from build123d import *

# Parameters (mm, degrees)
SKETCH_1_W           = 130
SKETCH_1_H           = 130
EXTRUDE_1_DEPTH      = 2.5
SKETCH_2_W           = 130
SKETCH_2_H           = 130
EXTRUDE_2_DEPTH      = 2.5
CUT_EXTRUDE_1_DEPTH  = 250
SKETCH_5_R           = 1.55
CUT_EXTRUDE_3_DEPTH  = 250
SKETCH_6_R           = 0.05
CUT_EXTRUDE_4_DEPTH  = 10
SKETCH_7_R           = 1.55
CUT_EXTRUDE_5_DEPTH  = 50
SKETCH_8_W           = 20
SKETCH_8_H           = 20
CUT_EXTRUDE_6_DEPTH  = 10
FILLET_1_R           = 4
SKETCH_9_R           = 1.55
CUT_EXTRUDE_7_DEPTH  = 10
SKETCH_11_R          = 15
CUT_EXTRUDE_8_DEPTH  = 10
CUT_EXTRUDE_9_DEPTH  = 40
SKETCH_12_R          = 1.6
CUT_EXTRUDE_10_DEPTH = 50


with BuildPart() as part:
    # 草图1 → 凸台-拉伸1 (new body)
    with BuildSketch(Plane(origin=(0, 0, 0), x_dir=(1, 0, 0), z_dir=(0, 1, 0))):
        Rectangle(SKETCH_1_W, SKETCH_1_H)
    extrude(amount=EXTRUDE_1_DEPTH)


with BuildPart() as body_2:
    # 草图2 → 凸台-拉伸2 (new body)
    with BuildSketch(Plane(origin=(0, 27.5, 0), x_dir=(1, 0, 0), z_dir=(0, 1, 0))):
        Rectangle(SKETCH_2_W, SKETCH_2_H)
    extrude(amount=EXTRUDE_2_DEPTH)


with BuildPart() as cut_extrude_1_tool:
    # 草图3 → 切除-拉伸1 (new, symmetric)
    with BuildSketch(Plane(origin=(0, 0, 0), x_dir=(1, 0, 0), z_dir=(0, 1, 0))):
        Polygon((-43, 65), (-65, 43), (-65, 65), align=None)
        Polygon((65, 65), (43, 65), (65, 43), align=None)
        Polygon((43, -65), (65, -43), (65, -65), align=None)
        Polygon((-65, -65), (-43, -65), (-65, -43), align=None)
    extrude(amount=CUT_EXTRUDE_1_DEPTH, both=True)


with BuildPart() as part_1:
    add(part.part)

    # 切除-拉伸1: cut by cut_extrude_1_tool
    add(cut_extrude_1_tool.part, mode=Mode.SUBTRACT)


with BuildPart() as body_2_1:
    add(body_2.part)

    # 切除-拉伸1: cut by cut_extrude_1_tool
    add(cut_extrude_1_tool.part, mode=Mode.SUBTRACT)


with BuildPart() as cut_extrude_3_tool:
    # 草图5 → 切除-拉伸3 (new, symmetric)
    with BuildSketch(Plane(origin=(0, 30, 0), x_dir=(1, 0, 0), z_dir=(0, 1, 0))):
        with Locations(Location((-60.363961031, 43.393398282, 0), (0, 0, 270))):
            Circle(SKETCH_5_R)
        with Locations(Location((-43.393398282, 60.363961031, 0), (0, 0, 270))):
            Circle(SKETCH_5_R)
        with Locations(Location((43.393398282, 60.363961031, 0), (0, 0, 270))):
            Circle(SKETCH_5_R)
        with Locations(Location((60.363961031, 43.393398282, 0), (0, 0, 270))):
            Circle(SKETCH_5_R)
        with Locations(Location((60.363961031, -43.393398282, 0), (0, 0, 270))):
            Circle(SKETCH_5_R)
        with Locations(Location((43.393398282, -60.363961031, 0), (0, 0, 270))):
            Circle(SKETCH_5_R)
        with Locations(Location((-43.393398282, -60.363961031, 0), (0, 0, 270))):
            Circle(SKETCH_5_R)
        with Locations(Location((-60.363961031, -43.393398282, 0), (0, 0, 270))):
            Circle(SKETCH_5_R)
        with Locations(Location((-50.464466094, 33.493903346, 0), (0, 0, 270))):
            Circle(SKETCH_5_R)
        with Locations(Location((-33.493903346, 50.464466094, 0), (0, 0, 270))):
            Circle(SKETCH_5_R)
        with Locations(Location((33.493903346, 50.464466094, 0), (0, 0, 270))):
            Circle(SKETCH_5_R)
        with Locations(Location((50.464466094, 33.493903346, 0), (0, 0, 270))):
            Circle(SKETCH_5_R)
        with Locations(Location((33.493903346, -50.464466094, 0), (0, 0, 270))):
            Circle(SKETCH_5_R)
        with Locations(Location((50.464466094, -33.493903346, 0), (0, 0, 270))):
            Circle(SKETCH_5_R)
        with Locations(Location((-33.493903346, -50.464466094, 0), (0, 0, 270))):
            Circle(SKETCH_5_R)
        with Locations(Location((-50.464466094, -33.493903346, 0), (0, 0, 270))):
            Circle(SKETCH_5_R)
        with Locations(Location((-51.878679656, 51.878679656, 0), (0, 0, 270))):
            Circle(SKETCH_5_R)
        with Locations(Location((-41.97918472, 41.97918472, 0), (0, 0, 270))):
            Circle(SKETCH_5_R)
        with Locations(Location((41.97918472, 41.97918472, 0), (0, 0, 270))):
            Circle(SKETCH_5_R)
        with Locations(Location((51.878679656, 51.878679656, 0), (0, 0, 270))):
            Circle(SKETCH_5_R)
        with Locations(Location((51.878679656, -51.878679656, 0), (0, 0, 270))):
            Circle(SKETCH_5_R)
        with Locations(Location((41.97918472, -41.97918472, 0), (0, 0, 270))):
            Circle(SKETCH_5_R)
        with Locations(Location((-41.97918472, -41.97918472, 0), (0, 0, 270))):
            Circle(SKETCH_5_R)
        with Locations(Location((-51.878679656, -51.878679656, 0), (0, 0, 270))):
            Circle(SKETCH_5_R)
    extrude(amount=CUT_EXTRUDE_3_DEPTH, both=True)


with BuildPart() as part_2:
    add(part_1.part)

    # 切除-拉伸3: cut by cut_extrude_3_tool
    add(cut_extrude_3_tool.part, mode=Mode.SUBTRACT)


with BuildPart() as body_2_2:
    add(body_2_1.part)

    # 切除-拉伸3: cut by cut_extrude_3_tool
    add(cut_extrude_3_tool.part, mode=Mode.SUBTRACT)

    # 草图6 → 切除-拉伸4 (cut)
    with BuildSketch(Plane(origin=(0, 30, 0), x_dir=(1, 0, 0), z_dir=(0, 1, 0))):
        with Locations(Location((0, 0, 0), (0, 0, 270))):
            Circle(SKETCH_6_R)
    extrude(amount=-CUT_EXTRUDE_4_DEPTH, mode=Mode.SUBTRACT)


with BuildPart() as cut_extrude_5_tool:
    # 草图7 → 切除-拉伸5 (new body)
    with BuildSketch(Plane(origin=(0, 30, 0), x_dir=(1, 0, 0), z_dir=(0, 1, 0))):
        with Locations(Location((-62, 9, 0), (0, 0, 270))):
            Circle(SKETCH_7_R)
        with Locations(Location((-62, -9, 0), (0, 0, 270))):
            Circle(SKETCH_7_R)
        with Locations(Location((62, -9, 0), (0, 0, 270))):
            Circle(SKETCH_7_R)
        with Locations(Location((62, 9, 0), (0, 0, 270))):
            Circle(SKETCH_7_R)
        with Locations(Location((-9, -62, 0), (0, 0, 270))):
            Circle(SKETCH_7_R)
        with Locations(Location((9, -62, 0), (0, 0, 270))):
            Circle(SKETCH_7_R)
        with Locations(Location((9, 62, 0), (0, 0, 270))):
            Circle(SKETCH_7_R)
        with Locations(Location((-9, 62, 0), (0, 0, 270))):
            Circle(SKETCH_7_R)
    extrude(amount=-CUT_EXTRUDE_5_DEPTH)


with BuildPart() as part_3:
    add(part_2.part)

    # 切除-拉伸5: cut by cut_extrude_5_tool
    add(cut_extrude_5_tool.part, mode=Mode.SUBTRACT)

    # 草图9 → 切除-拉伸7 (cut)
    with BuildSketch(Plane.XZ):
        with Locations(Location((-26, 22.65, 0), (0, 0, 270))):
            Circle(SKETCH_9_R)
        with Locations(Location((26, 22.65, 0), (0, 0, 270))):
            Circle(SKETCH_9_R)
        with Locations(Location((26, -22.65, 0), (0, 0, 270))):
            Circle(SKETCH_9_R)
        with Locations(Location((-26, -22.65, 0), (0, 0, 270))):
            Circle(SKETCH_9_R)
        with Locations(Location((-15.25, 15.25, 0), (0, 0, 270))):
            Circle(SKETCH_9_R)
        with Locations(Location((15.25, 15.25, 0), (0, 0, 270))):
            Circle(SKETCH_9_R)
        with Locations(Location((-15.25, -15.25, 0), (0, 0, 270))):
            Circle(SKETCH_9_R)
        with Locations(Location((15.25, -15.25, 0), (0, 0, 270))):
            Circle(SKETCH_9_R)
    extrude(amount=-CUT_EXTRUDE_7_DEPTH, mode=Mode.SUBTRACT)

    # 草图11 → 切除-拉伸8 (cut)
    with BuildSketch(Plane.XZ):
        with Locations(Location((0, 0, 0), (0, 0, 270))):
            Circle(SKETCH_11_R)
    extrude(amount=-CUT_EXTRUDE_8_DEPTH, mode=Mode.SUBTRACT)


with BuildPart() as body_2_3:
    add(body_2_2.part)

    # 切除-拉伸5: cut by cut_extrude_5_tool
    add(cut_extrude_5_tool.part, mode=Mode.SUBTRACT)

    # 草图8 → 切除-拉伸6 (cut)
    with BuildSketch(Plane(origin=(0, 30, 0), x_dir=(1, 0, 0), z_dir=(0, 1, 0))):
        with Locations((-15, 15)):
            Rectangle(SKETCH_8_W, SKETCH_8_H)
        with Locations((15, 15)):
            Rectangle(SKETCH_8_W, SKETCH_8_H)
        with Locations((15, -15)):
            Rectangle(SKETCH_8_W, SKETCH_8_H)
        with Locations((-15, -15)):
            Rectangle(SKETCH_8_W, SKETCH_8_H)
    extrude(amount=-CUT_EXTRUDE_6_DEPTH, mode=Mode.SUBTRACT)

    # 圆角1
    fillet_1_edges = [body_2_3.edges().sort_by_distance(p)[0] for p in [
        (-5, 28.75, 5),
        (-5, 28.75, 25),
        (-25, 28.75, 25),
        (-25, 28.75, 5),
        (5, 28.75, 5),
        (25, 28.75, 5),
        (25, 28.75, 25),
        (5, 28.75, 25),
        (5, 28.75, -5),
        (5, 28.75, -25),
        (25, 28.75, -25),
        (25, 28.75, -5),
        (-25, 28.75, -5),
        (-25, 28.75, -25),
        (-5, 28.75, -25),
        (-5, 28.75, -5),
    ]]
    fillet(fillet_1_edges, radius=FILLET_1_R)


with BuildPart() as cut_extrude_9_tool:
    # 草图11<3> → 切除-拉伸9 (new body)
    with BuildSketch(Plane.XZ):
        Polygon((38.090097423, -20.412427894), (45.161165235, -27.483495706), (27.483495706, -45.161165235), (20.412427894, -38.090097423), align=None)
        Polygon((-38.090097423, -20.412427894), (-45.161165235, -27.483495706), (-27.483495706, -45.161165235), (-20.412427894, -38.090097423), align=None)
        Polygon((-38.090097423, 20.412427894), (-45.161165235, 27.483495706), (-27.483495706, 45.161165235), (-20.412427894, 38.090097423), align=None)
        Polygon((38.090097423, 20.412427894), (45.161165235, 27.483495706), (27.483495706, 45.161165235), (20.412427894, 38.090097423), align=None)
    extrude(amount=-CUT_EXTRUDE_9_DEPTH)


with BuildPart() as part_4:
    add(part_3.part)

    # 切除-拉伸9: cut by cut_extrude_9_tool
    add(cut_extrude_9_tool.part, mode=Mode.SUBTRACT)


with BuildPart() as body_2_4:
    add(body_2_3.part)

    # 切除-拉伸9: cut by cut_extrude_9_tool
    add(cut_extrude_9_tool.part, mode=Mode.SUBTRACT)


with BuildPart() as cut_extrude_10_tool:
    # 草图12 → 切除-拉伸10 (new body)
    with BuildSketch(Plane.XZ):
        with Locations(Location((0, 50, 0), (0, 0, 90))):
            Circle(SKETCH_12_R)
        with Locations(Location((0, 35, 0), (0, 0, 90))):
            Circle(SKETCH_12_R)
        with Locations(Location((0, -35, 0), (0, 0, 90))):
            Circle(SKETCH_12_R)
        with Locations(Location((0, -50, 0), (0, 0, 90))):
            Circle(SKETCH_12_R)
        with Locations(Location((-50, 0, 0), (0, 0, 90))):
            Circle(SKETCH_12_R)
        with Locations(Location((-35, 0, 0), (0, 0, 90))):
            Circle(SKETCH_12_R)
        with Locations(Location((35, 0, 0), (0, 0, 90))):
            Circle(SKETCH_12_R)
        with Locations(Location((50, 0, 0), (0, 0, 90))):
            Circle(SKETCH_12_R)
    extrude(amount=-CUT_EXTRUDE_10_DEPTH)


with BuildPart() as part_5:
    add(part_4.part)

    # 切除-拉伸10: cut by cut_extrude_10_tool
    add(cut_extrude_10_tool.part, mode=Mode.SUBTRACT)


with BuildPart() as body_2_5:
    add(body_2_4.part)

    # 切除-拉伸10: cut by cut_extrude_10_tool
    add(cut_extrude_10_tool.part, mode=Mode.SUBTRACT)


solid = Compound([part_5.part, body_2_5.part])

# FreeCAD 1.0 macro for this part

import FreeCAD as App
import Part
import Sketcher
from FreeCAD import Vector
Q = App.Units.Quantity


def edges_at(feature, points):
    """Names of the edges that pass closest to the given points."""
    edges = feature.Shape.Edges
    near = lambda p: min(range(len(edges)), key=lambda i: edges[i].distToShape(Part.Vertex(*p))[0])
    return sorted({f"Edge{near(p) + 1}" for p in points})


def add_polygon(sketch, points):
    """Adds a closed chain of lines whose ends are joined by coincident constraints."""
    first, n = sketch.GeometryCount, len(points)
    for a, b in zip(points, points[1:] + points[:1]):
        sketch.addGeometry(Part.LineSegment(App.Vector(*a, 0), App.Vector(*b, 0)), False)
    for i in range(n):
        sketch.addConstraint(Sketcher.Constraint("Coincident", first + i, 2, first + (i + 1) % n, 1))

doc = App.newDocument("Part")
params = doc.addObject("Spreadsheet::Sheet", "Params")
for row, (alias, value) in enumerate([
    ("sketch1_width", "130 mm"),
    ("pad1_length", "2.5 mm"),
    ("sketch2_width", "130 mm"),
    ("pad2_length", "2.5 mm"),
    ("sketch3_width", "22 mm"),
    ("pad3_length", "500 mm"),
    ("sketch4_diameter", "3.1 mm"),
    ("pad4_length", "500 mm"),
    ("sketch5_diameter", "0.1 mm"),
    ("pocket1_length", "10 mm"),
    ("sketch6_diameter", "3.1 mm"),
    ("pad5_length", "50 mm"),
    ("sketch7_diameter", "3.1 mm"),
    ("pocket2_length", "10 mm"),
    ("sketch8_diameter", "30 mm"),
    ("pocket3_length", "10 mm"),
    ("sketch9_width", "20 mm"),
    ("pocket4_length", "10 mm"),
    ("fillet_radius", "4 mm"),
    ("sketch10_length", "10 mm"),
    ("sketch10_length2", "25 mm"),
    ("pad6_length", "40 mm"),
    ("sketch11_diameter", "3.2 mm"),
    ("pad7_length", "50 mm"),
], start=1):
    params.set(f"A{row}", alias)
    params.set(f"B{row}", "=" + value)
    params.setAlias(f"B{row}", alias)

body = doc.addObject("PartDesign::Body", "Body")

sketch1 = body.newObject("Sketcher::SketchObject", "Sketch")
sketch1.AttachmentSupport = (doc.getObject("XZ_Plane"), [""])
sketch1.MapMode = "FlatFace"
add_polygon(sketch1, [(-65, -65), (-65, 65), (65, 65), (65, -65)])
sketch1.addConstraint([
    Sketcher.Constraint("Vertical", 0),
    Sketcher.Constraint("Horizontal", 1),
    Sketcher.Constraint("Vertical", 2),
    Sketcher.Constraint("Horizontal", 3),
    Sketcher.Constraint("Symmetric", 0, 2, 2, 2, -1, 1),
    Sketcher.Constraint("Equal", 3, 0),
    Sketcher.Constraint("DistanceX", 1, 1, 1, 2, Q("130 mm")),
])
sketch1.setExpression("Constraints[10]", "Params.sketch1_width")
pad1 = body.newObject("PartDesign::Pad", "Pad")
pad1.Profile = sketch1
pad1.setExpression("Length", "Params.pad1_length")
pad1.Reversed = True
body2 = doc.addObject("PartDesign::Body", "Body001")

sketch2 = body2.newObject("Sketcher::SketchObject", "Sketch001")
sketch2.AttachmentSupport = (doc.getObject("XZ_Plane001"), [""])
sketch2.MapMode = "FlatFace"
sketch2.AttachmentOffset = App.Placement(Vector(0, 0, -27.5), App.Rotation())
add_polygon(sketch2, [(-65, -65), (-65, 65), (65, 65), (65, -65)])
sketch2.addConstraint([
    Sketcher.Constraint("Vertical", 0),
    Sketcher.Constraint("Horizontal", 1),
    Sketcher.Constraint("Vertical", 2),
    Sketcher.Constraint("Horizontal", 3),
    Sketcher.Constraint("Symmetric", 0, 2, 2, 2, -1, 1),
    Sketcher.Constraint("Equal", 3, 0),
    Sketcher.Constraint("DistanceX", 1, 1, 1, 2, Q("130 mm")),
])
sketch2.setExpression("Constraints[10]", "Params.sketch2_width")
pad2 = body2.newObject("PartDesign::Pad", "Pad001")
pad2.Profile = sketch2
pad2.setExpression("Length", "Params.pad2_length")
pad2.Reversed = True
body3 = doc.addObject("PartDesign::Body", "Body002")
body3.AllowCompound = True

sketch3 = body3.newObject("Sketcher::SketchObject", "Sketch002")
sketch3.AttachmentSupport = (doc.getObject("XZ_Plane002"), [""])
sketch3.MapMode = "FlatFace"
add_polygon(sketch3, [(-65, -43), (-43, -65), (-65, -65)])
add_polygon(sketch3, [(65, -65), (43, -65), (65, -43)])
add_polygon(sketch3, [(65, 43), (43, 65), (65, 65)])
add_polygon(sketch3, [(-65, 65), (-43, 65), (-65, 43)])
sketch3.addConstraint([
    Sketcher.Constraint("Horizontal", 1),
    Sketcher.Constraint("Vertical", 2),
    Sketcher.Constraint("Horizontal", 3),
    Sketcher.Constraint("Vertical", 5),
    Sketcher.Constraint("Horizontal", 7),
    Sketcher.Constraint("Vertical", 8),
    Sketcher.Constraint("Horizontal", 9),
    Sketcher.Constraint("Vertical", 11),
    Sketcher.Constraint("Symmetric", 0, 2, 6, 2, -1, 1),
    Sketcher.Constraint("Symmetric", 2, 2, 8, 2, -1, 1),
    Sketcher.Constraint("Symmetric", 3, 2, 9, 2, -1, 1),
    Sketcher.Constraint("Symmetric", 4, 2, 10, 2, -1, 1),
    Sketcher.Constraint("Symmetric", 0, 2, 3, 2, -2),
    Sketcher.Constraint("Symmetric", 2, 2, 4, 2, -2),
    Sketcher.Constraint("Perpendicular", 0, 4),
    Sketcher.Constraint("DistanceX", 1, 2, 1, 1, Q("22 mm")),
    Sketcher.Constraint("DistanceX", 0, 2, -1, 1, Q("43 mm")),
    Sketcher.Constraint("DistanceY", 0, 2, -1, 1, Q("65 mm")),
])
sketch3.setExpression("Constraints[27]", "Params.sketch3_width")
pad3 = body3.newObject("PartDesign::Pad", "Pad002")
pad3.Profile = sketch3
pad3.setExpression("Length", "Params.pad3_length")
pad3.Midplane = True
doc.recompute()

body4 = doc.addObject("PartDesign::Body", "Body003")
body4.BaseFeature = body3
boolean = body.newObject("PartDesign::Boolean", "Boolean")
boolean.Type = "Cut"
boolean.addObjects([body4])
doc.recompute()

boolean2 = body2.newObject("PartDesign::Boolean", "Boolean001")
boolean2.Type = "Cut"
boolean2.addObjects([body3])
body5 = doc.addObject("PartDesign::Body", "Body004")
body5.AllowCompound = True

sketch4 = body5.newObject("Sketcher::SketchObject", "Sketch003")
sketch4.AttachmentSupport = (doc.getObject("XZ_Plane004"), [""])
sketch4.MapMode = "FlatFace"
sketch4.AttachmentOffset = App.Placement(Vector(0, 0, -30), App.Rotation())
sketch4.addGeometry([
    Part.Circle(Vector(-60.363961, -43.393398, 0), Vector(0, 0, 1), 1.55),
    Part.Circle(Vector(-43.393398, -60.363961, 0), Vector(0, 0, 1), 1.55),
    Part.Circle(Vector(43.393398, -60.363961, 0), Vector(0, 0, 1), 1.55),
    Part.Circle(Vector(60.363961, -43.393398, 0), Vector(0, 0, 1), 1.55),
    Part.Circle(Vector(60.363961, 43.393398, 0), Vector(0, 0, 1), 1.55),
    Part.Circle(Vector(43.393398, 60.363961, 0), Vector(0, 0, 1), 1.55),
    Part.Circle(Vector(-43.393398, 60.363961, 0), Vector(0, 0, 1), 1.55),
    Part.Circle(Vector(-60.363961, 43.393398, 0), Vector(0, 0, 1), 1.55),
    Part.Circle(Vector(-50.464466, -33.493903, 0), Vector(0, 0, 1), 1.55),
    Part.Circle(Vector(-33.493903, -50.464466, 0), Vector(0, 0, 1), 1.55),
    Part.Circle(Vector(33.493903, -50.464466, 0), Vector(0, 0, 1), 1.55),
    Part.Circle(Vector(50.464466, -33.493903, 0), Vector(0, 0, 1), 1.55),
    Part.Circle(Vector(33.493903, 50.464466, 0), Vector(0, 0, 1), 1.55),
    Part.Circle(Vector(50.464466, 33.493903, 0), Vector(0, 0, 1), 1.55),
    Part.Circle(Vector(-33.493903, 50.464466, 0), Vector(0, 0, 1), 1.55),
    Part.Circle(Vector(-50.464466, 33.493903, 0), Vector(0, 0, 1), 1.55),
    Part.Circle(Vector(-51.87868, -51.87868, 0), Vector(0, 0, 1), 1.55),
    Part.Circle(Vector(-41.979185, -41.979185, 0), Vector(0, 0, 1), 1.55),
    Part.Circle(Vector(41.979185, -41.979185, 0), Vector(0, 0, 1), 1.55),
    Part.Circle(Vector(51.87868, -51.87868, 0), Vector(0, 0, 1), 1.55),
    Part.Circle(Vector(51.87868, 51.87868, 0), Vector(0, 0, 1), 1.55),
    Part.Circle(Vector(41.979185, 41.979185, 0), Vector(0, 0, 1), 1.55),
    Part.Circle(Vector(-41.979185, 41.979185, 0), Vector(0, 0, 1), 1.55),
    Part.Circle(Vector(-51.87868, 51.87868, 0), Vector(0, 0, 1), 1.55),
], False)
sketch4.addConstraint([
    Sketcher.Constraint("Equal", 0, 1),
    Sketcher.Constraint("Equal", 1, 2),
    Sketcher.Constraint("Equal", 2, 3),
    Sketcher.Constraint("Equal", 3, 4),
    Sketcher.Constraint("Equal", 4, 5),
    Sketcher.Constraint("Equal", 5, 6),
    Sketcher.Constraint("Equal", 6, 7),
    Sketcher.Constraint("Equal", 7, 8),
    Sketcher.Constraint("Equal", 8, 9),
    Sketcher.Constraint("Equal", 9, 10),
    Sketcher.Constraint("Equal", 10, 11),
    Sketcher.Constraint("Equal", 11, 12),
    Sketcher.Constraint("Equal", 12, 13),
    Sketcher.Constraint("Equal", 13, 14),
    Sketcher.Constraint("Equal", 14, 15),
    Sketcher.Constraint("Equal", 15, 16),
    Sketcher.Constraint("Equal", 16, 17),
    Sketcher.Constraint("Equal", 17, 18),
    Sketcher.Constraint("Equal", 18, 19),
    Sketcher.Constraint("Equal", 19, 20),
    Sketcher.Constraint("Equal", 20, 21),
    Sketcher.Constraint("Equal", 21, 22),
    Sketcher.Constraint("Equal", 22, 23),
    Sketcher.Constraint("Symmetric", 0, 3, 4, 3, -1, 1),
    Sketcher.Constraint("Symmetric", 1, 3, 5, 3, -1, 1),
    Sketcher.Constraint("Symmetric", 2, 3, 6, 3, -1, 1),
    Sketcher.Constraint("Symmetric", 3, 3, 7, 3, -1, 1),
    Sketcher.Constraint("Symmetric", 9, 3, 12, 3, -1, 1),
    Sketcher.Constraint("Symmetric", 8, 3, 13, 3, -1, 1),
    Sketcher.Constraint("Symmetric", 10, 3, 14, 3, -1, 1),
    Sketcher.Constraint("Symmetric", 11, 3, 15, 3, -1, 1),
    Sketcher.Constraint("Symmetric", 16, 3, 20, 3, -1, 1),
    Sketcher.Constraint("Symmetric", 17, 3, 21, 3, -1, 1),
    Sketcher.Constraint("Symmetric", 18, 3, 22, 3, -1, 1),
    Sketcher.Constraint("Symmetric", 19, 3, 23, 3, -1, 1),
    Sketcher.Constraint("Symmetric", 1, 3, 2, 3, -2),
    Sketcher.Constraint("Symmetric", 0, 3, 3, 3, -2),
    Sketcher.Constraint("Symmetric", 9, 3, 10, 3, -2),
    Sketcher.Constraint("Symmetric", 8, 3, 11, 3, -2),
    Sketcher.Constraint("Symmetric", 17, 3, 18, 3, -2),
    Sketcher.Constraint("Symmetric", 16, 3, 19, 3, -2),
    Sketcher.Constraint("Diameter", 0, Q("3.1 mm")),
    Sketcher.Constraint("DistanceY", 0, 3, -1, 1, Q("43.393398 mm")),
    Sketcher.Constraint("DistanceX", 1, 3, -1, 1, Q("43.393398 mm")),
    Sketcher.Constraint("DistanceY", 8, 3, 7, 3, Q("76.887302 mm")),
    Sketcher.Constraint("DistanceX", 9, 3, 2, 3, Q("76.887302 mm")),
    Sketcher.Constraint("DistanceX", 0, 3, -1, 1, Q("60.363961 mm")),
    Sketcher.Constraint("DistanceY", 1, 3, -1, 1, Q("60.363961 mm")),
    Sketcher.Constraint("DistanceX", 16, 3, -1, 1, Q("51.87868 mm")),
    Sketcher.Constraint("DistanceY", 16, 3, -1, 1, Q("51.87868 mm")),
    Sketcher.Constraint("DistanceX", 8, 3, 10, 3, Q("83.958369 mm")),
    Sketcher.Constraint("DistanceY", 11, 3, 12, 3, Q("83.958369 mm")),
    Sketcher.Constraint("DistanceX", 8, 3, 17, 3, Q("8.485281 mm")),
    Sketcher.Constraint("DistanceY", 17, 3, 8, 3, Q("8.485281 mm")),
])
sketch4.setExpression("Constraints[41]", "Params.sketch4_diameter")
pad4 = body5.newObject("PartDesign::Pad", "Pad003")
pad4.Profile = sketch4
pad4.setExpression("Length", "Params.pad4_length")
pad4.Midplane = True
doc.recompute()

body6 = doc.addObject("PartDesign::Body", "Body005")
body6.BaseFeature = body5
boolean3 = body.newObject("PartDesign::Boolean", "Boolean002")
boolean3.Type = "Cut"
boolean3.addObjects([body6])
doc.recompute()

boolean4 = body2.newObject("PartDesign::Boolean", "Boolean003")
boolean4.Type = "Cut"
boolean4.addObjects([body5])

sketch5 = body2.newObject("Sketcher::SketchObject", "Sketch004")
sketch5.AttachmentSupport = (doc.getObject("XZ_Plane001"), [""])
sketch5.MapMode = "FlatFace"
sketch5.AttachmentOffset = App.Placement(Vector(0, 0, -30), App.Rotation())
sketch5.addGeometry(Part.Circle(Vector(0, 0, 0), Vector(0, 0, 1), 0.05), False)
sketch5.addConstraint([
    Sketcher.Constraint("Coincident", 0, 3, -1, 1),
    Sketcher.Constraint("Diameter", 0, Q("0.1 mm")),
])
sketch5.setExpression("Constraints[1]", "Params.sketch5_diameter")
pocket1 = body2.newObject("PartDesign::Pocket", "Pocket")
pocket1.Profile = sketch5
pocket1.setExpression("Length", "Params.pocket1_length")
pocket1.Reversed = True
body7 = doc.addObject("PartDesign::Body", "Body006")
body7.AllowCompound = True

sketch6 = body7.newObject("Sketcher::SketchObject", "Sketch005")
sketch6.AttachmentSupport = (doc.getObject("XZ_Plane006"), [""])
sketch6.MapMode = "FlatFace"
sketch6.AttachmentOffset = App.Placement(Vector(0, 0, -30), App.Rotation())
sketch6.addGeometry([
    Part.Circle(Vector(-62, -9, 0), Vector(0, 0, 1), 1.55),
    Part.Circle(Vector(-62, 9, 0), Vector(0, 0, 1), 1.55),
    Part.Circle(Vector(62, 9, 0), Vector(0, 0, 1), 1.55),
    Part.Circle(Vector(62, -9, 0), Vector(0, 0, 1), 1.55),
    Part.Circle(Vector(-9, 62, 0), Vector(0, 0, 1), 1.55),
    Part.Circle(Vector(9, 62, 0), Vector(0, 0, 1), 1.55),
    Part.Circle(Vector(9, -62, 0), Vector(0, 0, 1), 1.55),
    Part.Circle(Vector(-9, -62, 0), Vector(0, 0, 1), 1.55),
], False)
sketch6.addConstraint([
    Sketcher.Constraint("Equal", 0, 1),
    Sketcher.Constraint("Equal", 1, 2),
    Sketcher.Constraint("Equal", 2, 3),
    Sketcher.Constraint("Equal", 3, 4),
    Sketcher.Constraint("Equal", 4, 5),
    Sketcher.Constraint("Equal", 5, 6),
    Sketcher.Constraint("Equal", 6, 7),
    Sketcher.Constraint("Symmetric", 0, 3, 2, 3, -1, 1),
    Sketcher.Constraint("Symmetric", 1, 3, 3, 3, -1, 1),
    Sketcher.Constraint("Symmetric", 4, 3, 6, 3, -1, 1),
    Sketcher.Constraint("Symmetric", 5, 3, 7, 3, -1, 1),
    Sketcher.Constraint("Symmetric", 1, 3, 2, 3, -2),
    Sketcher.Constraint("Symmetric", 4, 3, 5, 3, -2),
    Sketcher.Constraint("Diameter", 0, Q("3.1 mm")),
    Sketcher.Constraint("DistanceX", 0, 3, -1, 1, Q("62 mm")),
    Sketcher.Constraint("DistanceY", 0, 3, -1, 1, Q("9 mm")),
    Sketcher.Constraint("DistanceX", 4, 3, -1, 1, Q("9 mm")),
    Sketcher.Constraint("DistanceY", -1, 1, 4, 3, Q("62 mm")),
])
sketch6.setExpression("Constraints[13]", "Params.sketch6_diameter")
pad5 = body7.newObject("PartDesign::Pad", "Pad004")
pad5.Profile = sketch6
pad5.setExpression("Length", "Params.pad5_length")
doc.recompute()

body8 = doc.addObject("PartDesign::Body", "Body007")
body8.BaseFeature = body7
boolean5 = body.newObject("PartDesign::Boolean", "Boolean004")
boolean5.Type = "Cut"
boolean5.addObjects([body8])
doc.recompute()

sketch7 = body.newObject("Sketcher::SketchObject", "Sketch006")
sketch7.AttachmentSupport = (doc.getObject("XZ_Plane"), [""])
sketch7.MapMode = "FlatFace"
sketch7.addGeometry([
    Part.Circle(Vector(-26, 22.65, 0), Vector(0, 0, 1), 1.55),
    Part.Circle(Vector(26, 22.65, 0), Vector(0, 0, 1), 1.55),
    Part.Circle(Vector(26, -22.65, 0), Vector(0, 0, 1), 1.55),
    Part.Circle(Vector(-26, -22.65, 0), Vector(0, 0, 1), 1.55),
    Part.Circle(Vector(-15.25, 15.25, 0), Vector(0, 0, 1), 1.55),
    Part.Circle(Vector(15.25, 15.25, 0), Vector(0, 0, 1), 1.55),
    Part.Circle(Vector(-15.25, -15.25, 0), Vector(0, 0, 1), 1.55),
    Part.Circle(Vector(15.25, -15.25, 0), Vector(0, 0, 1), 1.55),
], False)
sketch7.addConstraint([
    Sketcher.Constraint("Equal", 0, 1),
    Sketcher.Constraint("Equal", 1, 2),
    Sketcher.Constraint("Equal", 2, 3),
    Sketcher.Constraint("Equal", 3, 4),
    Sketcher.Constraint("Equal", 4, 5),
    Sketcher.Constraint("Equal", 5, 6),
    Sketcher.Constraint("Equal", 6, 7),
    Sketcher.Constraint("Symmetric", 0, 3, 2, 3, -1, 1),
    Sketcher.Constraint("Symmetric", 1, 3, 3, 3, -1, 1),
    Sketcher.Constraint("Symmetric", 5, 3, 6, 3, -1, 1),
    Sketcher.Constraint("Symmetric", 4, 3, 7, 3, -1, 1),
    Sketcher.Constraint("Symmetric", 0, 3, 1, 3, -2),
    Sketcher.Constraint("Symmetric", 4, 3, 5, 3, -2),
    Sketcher.Constraint("Diameter", 0, Q("3.1 mm")),
    Sketcher.Constraint("DistanceX", 0, 3, -1, 1, Q("26 mm")),
    Sketcher.Constraint("DistanceY", 2, 3, 1, 3, Q("45.3 mm")),
    Sketcher.Constraint("DistanceY", 4, 3, 0, 3, Q("7.4 mm")),
    Sketcher.Constraint("DistanceX", 4, 3, 5, 3, Q("30.5 mm")),
])
sketch7.setExpression("Constraints[13]", "Params.sketch7_diameter")
pocket2 = body.newObject("PartDesign::Pocket", "Pocket001")
pocket2.Profile = sketch7
pocket2.setExpression("Length", "Params.pocket2_length")

sketch8 = body.newObject("Sketcher::SketchObject", "Sketch007")
sketch8.AttachmentSupport = (doc.getObject("XZ_Plane"), [""])
sketch8.MapMode = "FlatFace"
sketch8.addGeometry(Part.Circle(Vector(0, 0, 0), Vector(0, 0, 1), 15), False)
sketch8.addConstraint([
    Sketcher.Constraint("Coincident", 0, 3, -1, 1),
    Sketcher.Constraint("Diameter", 0, Q("30 mm")),
])
sketch8.setExpression("Constraints[1]", "Params.sketch8_diameter")
pocket3 = body.newObject("PartDesign::Pocket", "Pocket002")
pocket3.Profile = sketch8
pocket3.setExpression("Length", "Params.pocket3_length")
doc.recompute()

boolean6 = body2.newObject("PartDesign::Boolean", "Boolean005")
boolean6.Type = "Cut"
boolean6.addObjects([body7])

sketch9 = body2.newObject("Sketcher::SketchObject", "Sketch008")
sketch9.AttachmentSupport = (doc.getObject("XZ_Plane001"), [""])
sketch9.MapMode = "FlatFace"
sketch9.AttachmentOffset = App.Placement(Vector(0, 0, -30), App.Rotation())
add_polygon(sketch9, [(-25, -25), (-25, -5), (-5, -5), (-5, -25)])
add_polygon(sketch9, [(5, -25), (5, -5), (25, -5), (25, -25)])
add_polygon(sketch9, [(5, 5), (5, 25), (25, 25), (25, 5)])
add_polygon(sketch9, [(-25, 5), (-25, 25), (-5, 25), (-5, 5)])
sketch9.addConstraint([
    Sketcher.Constraint("Vertical", 0),
    Sketcher.Constraint("Horizontal", 1),
    Sketcher.Constraint("Vertical", 2),
    Sketcher.Constraint("Horizontal", 3),
    Sketcher.Constraint("Vertical", 4),
    Sketcher.Constraint("Horizontal", 5),
    Sketcher.Constraint("Vertical", 6),
    Sketcher.Constraint("Horizontal", 7),
    Sketcher.Constraint("Vertical", 8),
    Sketcher.Constraint("Horizontal", 9),
    Sketcher.Constraint("Vertical", 10),
    Sketcher.Constraint("Horizontal", 11),
    Sketcher.Constraint("Vertical", 12),
    Sketcher.Constraint("Horizontal", 13),
    Sketcher.Constraint("Vertical", 14),
    Sketcher.Constraint("Horizontal", 15),
    Sketcher.Constraint("Symmetric", 2, 2, 8, 2, -1, 1),
    Sketcher.Constraint("Symmetric", 0, 2, 10, 2, -1, 1),
    Sketcher.Constraint("Symmetric", 6, 2, 12, 2, -1, 1),
    Sketcher.Constraint("Symmetric", 4, 2, 14, 2, -1, 1),
    Sketcher.Constraint("Symmetric", 1, 2, 4, 2, -2),
    Sketcher.Constraint("Symmetric", 3, 2, 6, 2, -2),
    Sketcher.Constraint("Equal", 15, 0),
    Sketcher.Constraint("DistanceX", 1, 1, 1, 2, Q("20 mm")),
    Sketcher.Constraint("DistanceX", 0, 2, -1, 1, Q("25 mm")),
    Sketcher.Constraint("DistanceY", 0, 2, -1, 1, Q("5 mm")),
])
sketch9.setExpression("Constraints[39]", "Params.sketch9_width")
pocket4 = body2.newObject("PartDesign::Pocket", "Pocket003")
pocket4.Profile = sketch9
pocket4.setExpression("Length", "Params.pocket4_length")
pocket4.Reversed = True
doc.recompute()

fillet = body2.newObject("PartDesign::Fillet", "Fillet")
fillet.Base = (pocket4, edges_at(pocket4, [
    (-5, 28.75, 5),
    (-5, 28.75, 25),
    (-25, 28.75, 25),
    (-25, 28.75, 5),
    (5, 28.75, 5),
    (25, 28.75, 5),
    (25, 28.75, 25),
    (5, 28.75, 25),
    (5, 28.75, -5),
    (5, 28.75, -25),
    (25, 28.75, -25),
    (25, 28.75, -5),
    (-25, 28.75, -5),
    (-25, 28.75, -25),
    (-5, 28.75, -25),
    (-5, 28.75, -5),
]))
fillet.setExpression("Radius", "Params.fillet_radius")
body9 = doc.addObject("PartDesign::Body", "Body008")
body9.AllowCompound = True

sketch10 = body9.newObject("Sketcher::SketchObject", "Sketch009")
sketch10.AttachmentSupport = (doc.getObject("XZ_Plane008"), [""])
sketch10.MapMode = "FlatFace"
add_polygon(sketch10, [(45.161165, -27.483496), (38.090097, -20.412428), (20.412428, -38.090097), (27.483496, -45.161165)])
add_polygon(sketch10, [(-38.090097, -20.412428), (-45.161165, -27.483496), (-27.483496, -45.161165), (-20.412428, -38.090097)])
add_polygon(sketch10, [(-45.161165, 27.483496), (-38.090097, 20.412428), (-20.412428, 38.090097), (-27.483496, 45.161165)])
add_polygon(sketch10, [(38.090097, 20.412428), (45.161165, 27.483496), (27.483496, 45.161165), (20.412428, 38.090097)])
sketch10.addConstraint([
    Sketcher.Constraint("Symmetric", 0, 2, 8, 2, -1, 1),
    Sketcher.Constraint("Symmetric", 1, 2, 9, 2, -1, 1),
    Sketcher.Constraint("Symmetric", 2, 2, 10, 2, -1, 1),
    Sketcher.Constraint("Symmetric", 3, 2, 11, 2, -1, 1),
    Sketcher.Constraint("Symmetric", 4, 2, 12, 2, -1, 1),
    Sketcher.Constraint("Symmetric", 5, 2, 13, 2, -1, 1),
    Sketcher.Constraint("Symmetric", 6, 2, 14, 2, -1, 1),
    Sketcher.Constraint("Symmetric", 7, 2, 15, 2, -1, 1),
    Sketcher.Constraint("Symmetric", 3, 2, 4, 2, -2),
    Sketcher.Constraint("Symmetric", 2, 2, 5, 2, -2),
    Sketcher.Constraint("Symmetric", 1, 2, 6, 2, -2),
    Sketcher.Constraint("Symmetric", 0, 2, 7, 2, -2),
    Sketcher.Constraint("Perpendicular", 0, 1),
    Sketcher.Constraint("Perpendicular", 1, 2),
    Sketcher.Constraint("Perpendicular", 2, 3),
    Sketcher.Constraint("Parallel", 3, 4),
    Sketcher.Constraint("Distance", 0, Q("10 mm")),
    Sketcher.Constraint("Distance", 1, Q("25 mm")),
    Sketcher.Constraint("DistanceX", 4, 2, 2, 2, Q("72.644661 mm")),
    Sketcher.Constraint("DistanceY", 4, 2, 10, 2, Q("72.644661 mm")),
])
sketch10.setExpression("Constraints[32]", "Params.sketch10_length")
sketch10.setExpression("Constraints[33]", "Params.sketch10_length2")
pad6 = body9.newObject("PartDesign::Pad", "Pad005")
pad6.Profile = sketch10
pad6.setExpression("Length", "Params.pad6_length")
pad6.Reversed = True
doc.recompute()

body10 = doc.addObject("PartDesign::Body", "Body009")
body10.BaseFeature = body9
boolean7 = body.newObject("PartDesign::Boolean", "Boolean006")
boolean7.Type = "Cut"
boolean7.addObjects([body10])
doc.recompute()

boolean8 = body2.newObject("PartDesign::Boolean", "Boolean007")
boolean8.Type = "Cut"
boolean8.addObjects([body9])
body11 = doc.addObject("PartDesign::Body", "Body010")
body11.AllowCompound = True

sketch11 = body11.newObject("Sketcher::SketchObject", "Sketch010")
sketch11.AttachmentSupport = (doc.getObject("XZ_Plane010"), [""])
sketch11.MapMode = "FlatFace"
sketch11.addGeometry([
    Part.Circle(Vector(0, 50, 0), Vector(0, 0, 1), 1.6),
    Part.Circle(Vector(0, 35, 0), Vector(0, 0, 1), 1.6),
    Part.Circle(Vector(0, -35, 0), Vector(0, 0, 1), 1.6),
    Part.Circle(Vector(0, -50, 0), Vector(0, 0, 1), 1.6),
    Part.Circle(Vector(-50, 0, 0), Vector(0, 0, 1), 1.6),
    Part.Circle(Vector(-35, 0, 0), Vector(0, 0, 1), 1.6),
    Part.Circle(Vector(35, 0, 0), Vector(0, 0, 1), 1.6),
    Part.Circle(Vector(50, 0, 0), Vector(0, 0, 1), 1.6),
], False)
sketch11.addConstraint([
    Sketcher.Constraint("Equal", 0, 1),
    Sketcher.Constraint("Equal", 1, 2),
    Sketcher.Constraint("Equal", 2, 3),
    Sketcher.Constraint("Equal", 3, 4),
    Sketcher.Constraint("Equal", 4, 5),
    Sketcher.Constraint("Equal", 5, 6),
    Sketcher.Constraint("Equal", 6, 7),
    Sketcher.Constraint("Symmetric", 1, 3, 2, 3, -1, 1),
    Sketcher.Constraint("Symmetric", 0, 3, 3, 3, -1, 1),
    Sketcher.Constraint("Symmetric", 5, 3, 6, 3, -1, 1),
    Sketcher.Constraint("Symmetric", 4, 3, 7, 3, -1, 1),
    Sketcher.Constraint("PointOnObject", 0, 3, -2),
    Sketcher.Constraint("PointOnObject", 1, 3, -2),
    Sketcher.Constraint("PointOnObject", 4, 3, -1),
    Sketcher.Constraint("PointOnObject", 5, 3, -1),
    Sketcher.Constraint("Diameter", 0, Q("3.2 mm")),
    Sketcher.Constraint("DistanceY", -1, 1, 0, 3, Q("50 mm")),
    Sketcher.Constraint("DistanceY", -1, 1, 1, 3, Q("35 mm")),
    Sketcher.Constraint("DistanceX", 4, 3, -1, 1, Q("50 mm")),
    Sketcher.Constraint("DistanceX", 5, 3, -1, 1, Q("35 mm")),
])
sketch11.setExpression("Constraints[15]", "Params.sketch11_diameter")
pad7 = body11.newObject("PartDesign::Pad", "Pad006")
pad7.Profile = sketch11
pad7.setExpression("Length", "Params.pad7_length")
pad7.Reversed = True
doc.recompute()

body12 = doc.addObject("PartDesign::Body", "Body011")
body12.BaseFeature = body11
boolean9 = body.newObject("PartDesign::Boolean", "Boolean008")
boolean9.Type = "Cut"
boolean9.addObjects([body12])
doc.recompute()

boolean10 = body2.newObject("PartDesign::Boolean", "Boolean009")
boolean10.Type = "Cut"
boolean10.addObjects([body11])

doc.recompute()
